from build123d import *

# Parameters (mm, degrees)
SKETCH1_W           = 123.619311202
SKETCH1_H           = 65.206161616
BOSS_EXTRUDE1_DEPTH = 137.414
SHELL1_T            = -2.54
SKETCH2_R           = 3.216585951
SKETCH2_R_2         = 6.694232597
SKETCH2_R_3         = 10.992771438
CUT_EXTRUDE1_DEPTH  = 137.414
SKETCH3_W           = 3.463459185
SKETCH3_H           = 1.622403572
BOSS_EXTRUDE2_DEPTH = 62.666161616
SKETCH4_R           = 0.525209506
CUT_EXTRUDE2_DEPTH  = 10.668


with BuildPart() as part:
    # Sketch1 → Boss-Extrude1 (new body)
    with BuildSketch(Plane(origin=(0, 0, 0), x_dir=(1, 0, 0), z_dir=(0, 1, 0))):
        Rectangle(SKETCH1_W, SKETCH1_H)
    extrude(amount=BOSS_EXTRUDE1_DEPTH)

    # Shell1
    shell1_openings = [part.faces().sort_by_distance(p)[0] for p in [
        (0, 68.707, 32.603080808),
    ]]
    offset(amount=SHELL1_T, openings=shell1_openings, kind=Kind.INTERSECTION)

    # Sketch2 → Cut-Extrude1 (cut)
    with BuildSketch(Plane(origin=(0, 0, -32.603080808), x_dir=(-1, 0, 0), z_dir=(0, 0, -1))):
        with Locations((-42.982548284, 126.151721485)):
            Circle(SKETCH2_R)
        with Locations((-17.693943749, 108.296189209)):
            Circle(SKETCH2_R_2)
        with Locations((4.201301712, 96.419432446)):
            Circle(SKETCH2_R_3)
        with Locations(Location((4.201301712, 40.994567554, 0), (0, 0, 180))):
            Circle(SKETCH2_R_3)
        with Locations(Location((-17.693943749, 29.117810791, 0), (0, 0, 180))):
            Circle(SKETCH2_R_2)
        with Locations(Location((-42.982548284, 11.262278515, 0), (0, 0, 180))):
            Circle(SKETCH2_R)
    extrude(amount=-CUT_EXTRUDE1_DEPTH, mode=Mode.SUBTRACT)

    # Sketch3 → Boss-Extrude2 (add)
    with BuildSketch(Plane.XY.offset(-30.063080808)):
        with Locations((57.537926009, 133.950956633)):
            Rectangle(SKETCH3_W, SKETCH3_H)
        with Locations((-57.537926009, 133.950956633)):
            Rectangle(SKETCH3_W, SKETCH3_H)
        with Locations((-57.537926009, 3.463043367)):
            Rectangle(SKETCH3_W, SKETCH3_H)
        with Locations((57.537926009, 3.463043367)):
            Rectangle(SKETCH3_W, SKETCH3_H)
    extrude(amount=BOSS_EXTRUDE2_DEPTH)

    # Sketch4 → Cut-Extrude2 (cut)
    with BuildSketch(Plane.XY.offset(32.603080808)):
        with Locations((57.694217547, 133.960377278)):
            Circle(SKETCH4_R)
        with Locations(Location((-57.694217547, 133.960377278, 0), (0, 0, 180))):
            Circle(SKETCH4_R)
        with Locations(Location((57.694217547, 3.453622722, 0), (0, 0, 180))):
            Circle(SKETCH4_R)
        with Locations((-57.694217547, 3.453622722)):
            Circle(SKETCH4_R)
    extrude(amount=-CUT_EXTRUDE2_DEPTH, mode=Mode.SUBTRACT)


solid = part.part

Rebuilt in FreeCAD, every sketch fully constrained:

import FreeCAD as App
import Part
import Sketcher
from FreeCAD import Vector
Q = App.Units.Quantity


def faces_at(feature, points):
    """Names of the faces that lie closest to the given points."""
    faces = feature.Shape.Faces
    near = lambda p: min(range(len(faces)), key=lambda i: faces[i].distToShape(Part.Vertex(*p))[0])
    return sorted({f"Face{near(p) + 1}" for p in points})


def add_polygon(sketch, points):
    """Adds a closed chain of lines whose ends are joined by coincident constraints."""
    first, n = sketch.GeometryCount, len(points)
    for a, b in zip(points, points[1:] + points[:1]):
        sketch.addGeometry(Part.LineSegment(App.Vector(*a, 0), App.Vector(*b, 0)), False)
    for i in range(n):
        sketch.addConstraint(Sketcher.Constraint("Coincident", first + i, 2, first + (i + 1) % n, 1))

doc = App.newDocument("Part")
params = doc.addObject("Spreadsheet::Sheet", "Params")
for row, (alias, value) in enumerate([
    ("pad1_length", "5.41 in"),
    ("thickness_wall", "0.1 in"),
    ("pocket1_length", "5.41 in"),
    ("pad2_length", "62.666162 mm"),
    ("pocket2_length", "0.42 in"),
], start=1):
    params.set(f"A{row}", alias)
    params.set(f"B{row}", "=" + value)
    params.setAlias(f"B{row}", alias)

body = doc.addObject("PartDesign::Body", "Body")

# Sketch on XZ plane
sketch1 = doc.addObject("Sketcher::SketchObject", "Sketch")
body.addObject(sketch1)
sketch1.AttachmentSupport = (doc.XZ_Plane, [""])
sketch1.MapMode = "FlatFace"
add_polygon(sketch1, [(-61.809656, -32.603081), (-61.809656, 32.603081), (61.809656, 32.603081), (61.809656, -32.603081)])  # lines 0-3
sketch1.addConstraint(Sketcher.Constraint("Vertical", 0))
sketch1.addConstraint(Sketcher.Constraint("Horizontal", 1))
sketch1.addConstraint(Sketcher.Constraint("Vertical", 2))
sketch1.addConstraint(Sketcher.Constraint("Horizontal", 3))
sketch1.addConstraint(Sketcher.Constraint("Symmetric", 0, 2, 2, 2, -1, 1))
sketch1.addConstraint(Sketcher.Constraint("DistanceX", 1, 1, 1, 2, Q("123.619311 mm")))
sketch1.addConstraint(Sketcher.Constraint("DistanceY", 0, 1, 0, 2, Q("65.206162 mm")))
pad1 = doc.addObject("PartDesign::Pad", "Pad")
body.addObject(pad1)
pad1.Profile = sketch1
pad1.setExpression("Length", "Params.pad1_length")
pad1.Reversed = True
doc.recompute()

thickness = doc.addObject("PartDesign::Thickness", "Thickness")
body.addObject(thickness)
thickness.Base = (pad1, faces_at(pad1, [(0, 68.707, 32.603)]))
thickness.setExpression("Value", "Params.thickness_wall")
thickness.Reversed = True
thickness.Join = "Intersection"

# Sketch on XY plane
sketch2 = doc.addObject("Sketcher::SketchObject", "Sketch001")
body.addObject(sketch2)
sketch2.AttachmentSupport = (doc.XY_Plane, [""])
sketch2.MapMode = "FlatFace"
sketch2.AttachmentOffset = App.Placement(Vector(0, 0, -32.603081), App.Rotation())
sketch2.addGeometry(Part.Circle(Vector(42.982548, 126.151721, 0), Vector(0, 0, 1), 3.216586), False)
sketch2.addGeometry(Part.Circle(Vector(17.693944, 108.296189, 0), Vector(0, 0, 1), 6.694233), False)
sketch2.addGeometry(Part.Circle(Vector(-4.201302, 96.419432, 0), Vector(0, 0, 1), 10.992771), False)
sketch2.addGeometry(Part.Circle(Vector(-4.201302, 40.994568, 0), Vector(0, 0, 1), 10.992771), False)
sketch2.addGeometry(Part.Circle(Vector(17.693944, 29.117811, 0), Vector(0, 0, 1), 6.694233), False)
sketch2.addGeometry(Part.Circle(Vector(42.982548, 11.262279, 0), Vector(0, 0, 1), 3.216586), False)
sketch2.addConstraint(Sketcher.Constraint("Equal", 2, 3))
sketch2.addConstraint(Sketcher.Constraint("Equal", 1, 4))
sketch2.addConstraint(Sketcher.Constraint("Equal", 0, 5))
sketch2.addConstraint(Sketcher.Constraint("Vertical", 2, 3, 3, 3))
sketch2.addConstraint(Sketcher.Constraint("Vertical", 1, 3, 4, 3))
sketch2.addConstraint(Sketcher.Constraint("Vertical", 0, 3, 5, 3))
sketch2.addConstraint(Sketcher.Constraint("Diameter", 0, Q("6.433172 mm")))
sketch2.addConstraint(Sketcher.Constraint("Diameter", 1, Q("13.388465 mm")))
sketch2.addConstraint(Sketcher.Constraint("Diameter", 2, Q("21.985543 mm")))
sketch2.addConstraint(Sketcher.Constraint("DistanceX", 2, 3, -1, 1, Q("4.201302 mm")))
sketch2.addConstraint(Sketcher.Constraint("DistanceX", -1, 1, 0, 3, Q("42.982548 mm")))
sketch2.addConstraint(Sketcher.Constraint("DistanceY", -1, 1, 0, 3, Q("126.151721 mm")))
sketch2.addConstraint(Sketcher.Constraint("DistanceY", -1, 1, 1, 3, Q("108.296189 mm")))
sketch2.addConstraint(Sketcher.Constraint("DistanceY", -1, 1, 4, 3, Q("29.117811 mm")))
sketch2.addConstraint(Sketcher.Constraint("DistanceY", -1, 1, 5, 3, Q("11.262279 mm")))
sketch2.addConstraint(Sketcher.Constraint("DistanceY", 2, 3, 0, 3, Q("29.732289 mm")))
sketch2.addConstraint(Sketcher.Constraint("DistanceY", 3, 3, 1, 3, Q("67.301622 mm")))
sketch2.addConstraint(Sketcher.Constraint("DistanceX", -1, 1, 1, 3, Q("17.693944 mm")))
pocket1 = doc.addObject("PartDesign::Pocket", "Pocket")
body.addObject(pocket1)
pocket1.Profile = sketch2
pocket1.setExpression("Length", "Params.pocket1_length")
pocket1.Reversed = True

# Sketch on XY plane
sketch3 = doc.addObject("Sketcher::SketchObject", "Sketch002")
body.addObject(sketch3)
sketch3.AttachmentSupport = (doc.XY_Plane, [""])
sketch3.MapMode = "FlatFace"
sketch3.AttachmentOffset = App.Placement(Vector(0, 0, -30.063081), App.Rotation())
add_polygon(sketch3, [(55.806196, 134.762158), (55.806196, 133.139755), (59.269656, 133.139755), (59.269656, 134.762158)])  # lines 0-3
add_polygon(sketch3, [(-59.269656, 134.762158), (-59.269656, 133.139755), (-55.806196, 133.139755), (-55.806196, 134.762158)])  # lines 4-7
add_polygon(sketch3, [(-59.269656, 4.274245), (-59.269656, 2.651842), (-55.806196, 2.651842), (-55.806196, 4.274245)])  # lines 8-11
add_polygon(sketch3, [(55.806196, 4.274245), (55.806196, 2.651842), (59.269656, 2.651842), (59.269656, 4.274245)])  # lines 12-15
sketch3.addConstraint(Sketcher.Constraint("Vertical", 0))
sketch3.addConstraint(Sketcher.Constraint("Horizontal", 1))
sketch3.addConstraint(Sketcher.Constraint("Vertical", 2))
sketch3.addConstraint(Sketcher.Constraint("Horizontal", 3))
sketch3.addConstraint(Sketcher.Constraint("Vertical", 4))
sketch3.addConstraint(Sketcher.Constraint("Horizontal", 5))
sketch3.addConstraint(Sketcher.Constraint("Vertical", 6))
sketch3.addConstraint(Sketcher.Constraint("Horizontal", 7))
sketch3.addConstraint(Sketcher.Constraint("Vertical", 8))
sketch3.addConstraint(Sketcher.Constraint("Horizontal", 9))
sketch3.addConstraint(Sketcher.Constraint("Vertical", 10))
sketch3.addConstraint(Sketcher.Constraint("Horizontal", 11))
sketch3.addConstraint(Sketcher.Constraint("Vertical", 12))
sketch3.addConstraint(Sketcher.Constraint("Horizontal", 13))
sketch3.addConstraint(Sketcher.Constraint("Vertical", 14))
sketch3.addConstraint(Sketcher.Constraint("Horizontal", 15))
sketch3.addConstraint(Sketcher.Constraint("Symmetric", 1, 2, 4, 2, -2))
sketch3.addConstraint(Sketcher.Constraint("Symmetric", 3, 2, 6, 2, -2))
sketch3.addConstraint(Sketcher.Constraint("Symmetric", 9, 2, 12, 2, -2))
sketch3.addConstraint(Sketcher.Constraint("Symmetric", 11, 2, 14, 2, -2))
sketch3.addConstraint(Sketcher.Constraint("Vertical", 7, 2, 8, 2))
sketch3.addConstraint(Sketcher.Constraint("Vertical", 6, 2, 9, 2))
sketch3.addConstraint(Sketcher.Constraint("Equal", 6, 8))
sketch3.addConstraint(Sketcher.Constraint("DistanceX", 1, 1, 1, 2, Q("3.463459 mm")))
sketch3.addConstraint(Sketcher.Constraint("DistanceY", 0, 2, 0, 1, Q("1.622404 mm")))
sketch3.addConstraint(Sketcher.Constraint("DistanceY", -1, 1, 2, 2, Q("134.762158 mm")))
sketch3.addConstraint(Sketcher.Constraint("DistanceY", -1, 1, 8, 2, Q("2.651842 mm")))
sketch3.addConstraint(Sketcher.Constraint("DistanceX", 4, 2, 1, 2, Q("118.539311 mm")))
pad2 = doc.addObject("PartDesign::Pad", "Pad001")
body.addObject(pad2)
pad2.Profile = sketch3
pad2.setExpression("Length", "Params.pad2_length")

# Sketch on XY plane
sketch4 = doc.addObject("Sketcher::SketchObject", "Sketch003")
body.addObject(sketch4)
sketch4.AttachmentSupport = (doc.XY_Plane, [""])
sketch4.MapMode = "FlatFace"
sketch4.AttachmentOffset = App.Placement(Vector(0, 0, 32.603081), App.Rotation())
sketch4.addGeometry(Part.Circle(Vector(57.694218, 133.960377, 0), Vector(0, 0, 1), 0.52521), False)
sketch4.addGeometry(Part.Circle(Vector(-57.694218, 133.960377, 0), Vector(0, 0, 1), 0.52521), False)
sketch4.addGeometry(Part.Circle(Vector(57.694218, 3.453623, 0), Vector(0, 0, 1), 0.52521), False)
sketch4.addGeometry(Part.Circle(Vector(-57.694218, 3.453623, 0), Vector(0, 0, 1), 0.52521), False)
sketch4.addConstraint(Sketcher.Constraint("Equal", 0, 1))
sketch4.addConstraint(Sketcher.Constraint("Equal", 1, 2))
sketch4.addConstraint(Sketcher.Constraint("Equal", 2, 3))
sketch4.addConstraint(Sketcher.Constraint("Symmetric", 0, 3, 1, 3, -2))
sketch4.addConstraint(Sketcher.Constraint("Symmetric", 2, 3, 3, 3, -2))
sketch4.addConstraint(Sketcher.Constraint("Vertical", 0, 3, 2, 3))
sketch4.addConstraint(Sketcher.Constraint("Diameter", 0, Q("1.050419 mm")))
sketch4.addConstraint(Sketcher.Constraint("DistanceX", -1, 1, 0, 3, Q("57.694218 mm")))
sketch4.addConstraint(Sketcher.Constraint("DistanceY", -1, 1, 0, 3, Q("133.960377 mm")))
sketch4.addConstraint(Sketcher.Constraint("DistanceY", -1, 1, 2, 3, Q("3.453623 mm")))
pocket2 = doc.addObject("PartDesign::Pocket", "Pocket001")
body.addObject(pocket2)
pocket2.Profile = sketch4
pocket2.setExpression("Length", "Params.pocket2_length")

doc.recompute()
